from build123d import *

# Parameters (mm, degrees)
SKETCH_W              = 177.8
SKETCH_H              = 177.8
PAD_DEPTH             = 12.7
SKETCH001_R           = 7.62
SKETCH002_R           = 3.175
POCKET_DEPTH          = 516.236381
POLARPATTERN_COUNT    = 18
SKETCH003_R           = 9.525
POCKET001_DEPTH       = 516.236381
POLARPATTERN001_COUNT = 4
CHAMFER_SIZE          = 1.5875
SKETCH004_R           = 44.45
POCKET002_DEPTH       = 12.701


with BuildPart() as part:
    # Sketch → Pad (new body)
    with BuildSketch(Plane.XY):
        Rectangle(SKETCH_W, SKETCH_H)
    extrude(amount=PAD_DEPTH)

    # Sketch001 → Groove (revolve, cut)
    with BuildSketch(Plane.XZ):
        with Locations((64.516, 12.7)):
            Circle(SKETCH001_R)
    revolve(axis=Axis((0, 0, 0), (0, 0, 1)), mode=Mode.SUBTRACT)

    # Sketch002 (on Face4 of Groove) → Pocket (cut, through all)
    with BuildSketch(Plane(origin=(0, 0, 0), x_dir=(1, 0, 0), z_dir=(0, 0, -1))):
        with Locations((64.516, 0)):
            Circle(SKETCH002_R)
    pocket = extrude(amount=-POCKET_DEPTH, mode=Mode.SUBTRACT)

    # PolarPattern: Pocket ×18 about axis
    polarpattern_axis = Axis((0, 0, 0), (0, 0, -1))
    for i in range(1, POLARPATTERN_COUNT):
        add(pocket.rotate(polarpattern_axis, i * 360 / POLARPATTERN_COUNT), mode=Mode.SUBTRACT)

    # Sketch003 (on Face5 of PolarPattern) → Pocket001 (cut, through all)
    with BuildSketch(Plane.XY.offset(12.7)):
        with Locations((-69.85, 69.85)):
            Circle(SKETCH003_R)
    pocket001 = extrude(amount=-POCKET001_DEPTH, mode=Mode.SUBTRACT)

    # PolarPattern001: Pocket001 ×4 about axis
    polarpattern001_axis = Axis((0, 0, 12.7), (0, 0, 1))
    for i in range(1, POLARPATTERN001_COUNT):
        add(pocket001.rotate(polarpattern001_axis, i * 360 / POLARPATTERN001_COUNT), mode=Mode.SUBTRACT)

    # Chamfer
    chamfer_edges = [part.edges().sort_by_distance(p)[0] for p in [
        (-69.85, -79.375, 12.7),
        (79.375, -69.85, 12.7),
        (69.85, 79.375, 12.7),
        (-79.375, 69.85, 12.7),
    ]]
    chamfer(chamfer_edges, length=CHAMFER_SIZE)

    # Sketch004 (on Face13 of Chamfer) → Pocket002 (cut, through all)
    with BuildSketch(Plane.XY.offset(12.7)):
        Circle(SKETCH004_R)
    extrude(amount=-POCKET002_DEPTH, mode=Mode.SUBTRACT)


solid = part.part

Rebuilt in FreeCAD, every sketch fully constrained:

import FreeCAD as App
import Part
import Sketcher
from FreeCAD import Vector
Q = App.Units.Quantity


def edges_at(feature, points):
    """Names of the edges that pass closest to the given points."""
    edges = feature.Shape.Edges
    near = lambda p: min(range(len(edges)), key=lambda i: edges[i].distToShape(Part.Vertex(*p))[0])
    return sorted({f"Edge{near(p) + 1}" for p in points})


def add_polygon(sketch, points):
    """Adds a closed chain of lines whose ends are joined by coincident constraints."""
    first, n = sketch.GeometryCount, len(points)
    for a, b in zip(points, points[1:] + points[:1]):
        sketch.addGeometry(Part.LineSegment(App.Vector(*a, 0), App.Vector(*b, 0)), False)
    for i in range(n):
        sketch.addConstraint(Sketcher.Constraint("Coincident", first + i, 2, first + (i + 1) % n, 1))

doc = App.newDocument("Part")
body = doc.addObject("PartDesign::Body", "Body")

sketch1 = doc.addObject("Sketcher::SketchObject", "Sketch")
body.addObject(sketch1)
sketch1.AttachmentSupport = (doc.XY_Plane, [""])
sketch1.MapMode = "FlatFace"
add_polygon(sketch1, [(-88.9, 88.9), (-88.9, -88.9), (88.9, -88.9), (88.9, 88.9)])
sketch1.addConstraint(Sketcher.Constraint("Vertical", 0))
sketch1.addConstraint(Sketcher.Constraint("Horizontal", 1))
sketch1.addConstraint(Sketcher.Constraint("Vertical", 2))
sketch1.addConstraint(Sketcher.Constraint("Horizontal", 3))
sketch1.addConstraint(Sketcher.Constraint("Symmetric", 0, 2, 2, 2, -1, 1))
sketch1.addConstraint(Sketcher.Constraint("Equal", 3, 0))
sketch1.addConstraint(Sketcher.Constraint("DistanceX", 1, 1, 1, 2, Q("7 in")))
pad1 = doc.addObject("PartDesign::Pad", "Pad")
body.addObject(pad1)
pad1.Profile = sketch1
pad1.Length = Q("0.5 in")

sketch2 = doc.addObject("Sketcher::SketchObject", "Sketch001")
body.addObject(sketch2)
sketch2.AttachmentSupport = (doc.XZ_Plane, [""])
sketch2.MapMode = "FlatFace"
sketch2.addGeometry(Part.Circle(Vector(64.516, 12.7, 0), Vector(0, 0, 1), 7.62), False)
sketch2.addConstraint(Sketcher.Constraint("Diameter", 0, Q("0.6 in")))
sketch2.addConstraint(Sketcher.Constraint("DistanceY", -1, 1, 0, 3, Q("0.5 in")))
sketch2.addConstraint(Sketcher.Constraint("DistanceX", -1, 1, 0, 3, Q("2.54 in")))
groove = doc.addObject("PartDesign::Groove", "Groove")
body.addObject(groove)
groove.Profile = sketch2
groove.ReferenceAxis = (sketch2, ["V_Axis"])
groove.Angle = 360

sketch3 = doc.addObject("Sketcher::SketchObject", "Sketch002")
body.addObject(sketch3)
sketch3.AttachmentSupport = (doc.XY_Plane, [""])
sketch3.MapMode = "FlatFace"
sketch3.addGeometry(Part.Circle(Vector(64.516, 0, 0), Vector(0, 0, 1), 3.175), False)
sketch3.addConstraint(Sketcher.Constraint("PointOnObject", 0, 3, -1))
sketch3.addConstraint(Sketcher.Constraint("Diameter", 0, Q("0.25 in")))
sketch3.addConstraint(Sketcher.Constraint("DistanceX", -1, 1, 0, 3, Q("2.54 in")))
pocket1 = doc.addObject("PartDesign::Pocket", "Pocket")
body.addObject(pocket1)
pocket1.Profile = sketch3
pocket1.Type = "ThroughAll"
pocket1.Reversed = True
doc.recompute()

polarpattern = doc.addObject("PartDesign::PolarPattern", "PolarPattern")
body.addObject(polarpattern)
polarpattern.Originals = [pocket1]
polarpattern.Axis = (doc.Z_Axis, [""])
polarpattern.Angle = 360
polarpattern.Occurrences = 18
body.Tip = polarpattern

sketch4 = doc.addObject("Sketcher::SketchObject", "Sketch003")
body.addObject(sketch4)
sketch4.AttachmentSupport = (doc.XY_Plane, [""])
sketch4.MapMode = "FlatFace"
sketch4.AttachmentOffset = App.Placement(Vector(0, 0, 0.5 * 25.4), App.Rotation())
sketch4.addGeometry(Part.Circle(Vector(-69.85, 69.85, 0), Vector(0, 0, 1), 9.525), False)
sketch4.addConstraint(Sketcher.Constraint("Diameter", 0, Q("0.75 in")))
sketch4.addConstraint(Sketcher.Constraint("DistanceX", 0, 3, -1, 1, Q("2.75 in")))
sketch4.addConstraint(Sketcher.Constraint("DistanceY", -1, 1, 0, 3, Q("2.75 in")))
pocket2 = doc.addObject("PartDesign::Pocket", "Pocket001")
body.addObject(pocket2)
pocket2.Profile = sketch4
pocket2.Type = "ThroughAll"
doc.recompute()

polarpattern2 = doc.addObject("PartDesign::PolarPattern", "PolarPattern001")
body.addObject(polarpattern2)
polarpattern2.Originals = [pocket2]
polarpattern2.Axis = (doc.Z_Axis, [""])
polarpattern2.Angle = 360
polarpattern2.Occurrences = 4
body.Tip = polarpattern2
doc.recompute()

chamfer = doc.addObject("PartDesign::Chamfer", "Chamfer")
body.addObject(chamfer)
chamfer.Base = (polarpattern2, edges_at(polarpattern2, [
    (-69.85, -79.375, 12.7),
    (79.375, -69.85, 12.7),
    (69.85, 79.375, 12.7),
    (-79.375, 69.85, 12.7),
]))
chamfer.Size = Q("0.0625 in")

sketch5 = doc.addObject("Sketcher::SketchObject", "Sketch004")
body.addObject(sketch5)
sketch5.AttachmentSupport = (doc.XY_Plane, [""])
sketch5.MapMode = "FlatFace"
sketch5.AttachmentOffset = App.Placement(Vector(0, 0, 0.5 * 25.4), App.Rotation())
sketch5.addGeometry(Part.Circle(Vector(0, 0, 0), Vector(0, 0, 1), 44.45), False)
sketch5.addConstraint(Sketcher.Constraint("Coincident", 0, 3, -1, 1))
sketch5.addConstraint(Sketcher.Constraint("Diameter", 0, Q("3.5 in")))
pocket3 = doc.addObject("PartDesign::Pocket", "Pocket002")
body.addObject(pocket3)
pocket3.Profile = sketch5
pocket3.Type = "ThroughAll"

doc.recompute()
